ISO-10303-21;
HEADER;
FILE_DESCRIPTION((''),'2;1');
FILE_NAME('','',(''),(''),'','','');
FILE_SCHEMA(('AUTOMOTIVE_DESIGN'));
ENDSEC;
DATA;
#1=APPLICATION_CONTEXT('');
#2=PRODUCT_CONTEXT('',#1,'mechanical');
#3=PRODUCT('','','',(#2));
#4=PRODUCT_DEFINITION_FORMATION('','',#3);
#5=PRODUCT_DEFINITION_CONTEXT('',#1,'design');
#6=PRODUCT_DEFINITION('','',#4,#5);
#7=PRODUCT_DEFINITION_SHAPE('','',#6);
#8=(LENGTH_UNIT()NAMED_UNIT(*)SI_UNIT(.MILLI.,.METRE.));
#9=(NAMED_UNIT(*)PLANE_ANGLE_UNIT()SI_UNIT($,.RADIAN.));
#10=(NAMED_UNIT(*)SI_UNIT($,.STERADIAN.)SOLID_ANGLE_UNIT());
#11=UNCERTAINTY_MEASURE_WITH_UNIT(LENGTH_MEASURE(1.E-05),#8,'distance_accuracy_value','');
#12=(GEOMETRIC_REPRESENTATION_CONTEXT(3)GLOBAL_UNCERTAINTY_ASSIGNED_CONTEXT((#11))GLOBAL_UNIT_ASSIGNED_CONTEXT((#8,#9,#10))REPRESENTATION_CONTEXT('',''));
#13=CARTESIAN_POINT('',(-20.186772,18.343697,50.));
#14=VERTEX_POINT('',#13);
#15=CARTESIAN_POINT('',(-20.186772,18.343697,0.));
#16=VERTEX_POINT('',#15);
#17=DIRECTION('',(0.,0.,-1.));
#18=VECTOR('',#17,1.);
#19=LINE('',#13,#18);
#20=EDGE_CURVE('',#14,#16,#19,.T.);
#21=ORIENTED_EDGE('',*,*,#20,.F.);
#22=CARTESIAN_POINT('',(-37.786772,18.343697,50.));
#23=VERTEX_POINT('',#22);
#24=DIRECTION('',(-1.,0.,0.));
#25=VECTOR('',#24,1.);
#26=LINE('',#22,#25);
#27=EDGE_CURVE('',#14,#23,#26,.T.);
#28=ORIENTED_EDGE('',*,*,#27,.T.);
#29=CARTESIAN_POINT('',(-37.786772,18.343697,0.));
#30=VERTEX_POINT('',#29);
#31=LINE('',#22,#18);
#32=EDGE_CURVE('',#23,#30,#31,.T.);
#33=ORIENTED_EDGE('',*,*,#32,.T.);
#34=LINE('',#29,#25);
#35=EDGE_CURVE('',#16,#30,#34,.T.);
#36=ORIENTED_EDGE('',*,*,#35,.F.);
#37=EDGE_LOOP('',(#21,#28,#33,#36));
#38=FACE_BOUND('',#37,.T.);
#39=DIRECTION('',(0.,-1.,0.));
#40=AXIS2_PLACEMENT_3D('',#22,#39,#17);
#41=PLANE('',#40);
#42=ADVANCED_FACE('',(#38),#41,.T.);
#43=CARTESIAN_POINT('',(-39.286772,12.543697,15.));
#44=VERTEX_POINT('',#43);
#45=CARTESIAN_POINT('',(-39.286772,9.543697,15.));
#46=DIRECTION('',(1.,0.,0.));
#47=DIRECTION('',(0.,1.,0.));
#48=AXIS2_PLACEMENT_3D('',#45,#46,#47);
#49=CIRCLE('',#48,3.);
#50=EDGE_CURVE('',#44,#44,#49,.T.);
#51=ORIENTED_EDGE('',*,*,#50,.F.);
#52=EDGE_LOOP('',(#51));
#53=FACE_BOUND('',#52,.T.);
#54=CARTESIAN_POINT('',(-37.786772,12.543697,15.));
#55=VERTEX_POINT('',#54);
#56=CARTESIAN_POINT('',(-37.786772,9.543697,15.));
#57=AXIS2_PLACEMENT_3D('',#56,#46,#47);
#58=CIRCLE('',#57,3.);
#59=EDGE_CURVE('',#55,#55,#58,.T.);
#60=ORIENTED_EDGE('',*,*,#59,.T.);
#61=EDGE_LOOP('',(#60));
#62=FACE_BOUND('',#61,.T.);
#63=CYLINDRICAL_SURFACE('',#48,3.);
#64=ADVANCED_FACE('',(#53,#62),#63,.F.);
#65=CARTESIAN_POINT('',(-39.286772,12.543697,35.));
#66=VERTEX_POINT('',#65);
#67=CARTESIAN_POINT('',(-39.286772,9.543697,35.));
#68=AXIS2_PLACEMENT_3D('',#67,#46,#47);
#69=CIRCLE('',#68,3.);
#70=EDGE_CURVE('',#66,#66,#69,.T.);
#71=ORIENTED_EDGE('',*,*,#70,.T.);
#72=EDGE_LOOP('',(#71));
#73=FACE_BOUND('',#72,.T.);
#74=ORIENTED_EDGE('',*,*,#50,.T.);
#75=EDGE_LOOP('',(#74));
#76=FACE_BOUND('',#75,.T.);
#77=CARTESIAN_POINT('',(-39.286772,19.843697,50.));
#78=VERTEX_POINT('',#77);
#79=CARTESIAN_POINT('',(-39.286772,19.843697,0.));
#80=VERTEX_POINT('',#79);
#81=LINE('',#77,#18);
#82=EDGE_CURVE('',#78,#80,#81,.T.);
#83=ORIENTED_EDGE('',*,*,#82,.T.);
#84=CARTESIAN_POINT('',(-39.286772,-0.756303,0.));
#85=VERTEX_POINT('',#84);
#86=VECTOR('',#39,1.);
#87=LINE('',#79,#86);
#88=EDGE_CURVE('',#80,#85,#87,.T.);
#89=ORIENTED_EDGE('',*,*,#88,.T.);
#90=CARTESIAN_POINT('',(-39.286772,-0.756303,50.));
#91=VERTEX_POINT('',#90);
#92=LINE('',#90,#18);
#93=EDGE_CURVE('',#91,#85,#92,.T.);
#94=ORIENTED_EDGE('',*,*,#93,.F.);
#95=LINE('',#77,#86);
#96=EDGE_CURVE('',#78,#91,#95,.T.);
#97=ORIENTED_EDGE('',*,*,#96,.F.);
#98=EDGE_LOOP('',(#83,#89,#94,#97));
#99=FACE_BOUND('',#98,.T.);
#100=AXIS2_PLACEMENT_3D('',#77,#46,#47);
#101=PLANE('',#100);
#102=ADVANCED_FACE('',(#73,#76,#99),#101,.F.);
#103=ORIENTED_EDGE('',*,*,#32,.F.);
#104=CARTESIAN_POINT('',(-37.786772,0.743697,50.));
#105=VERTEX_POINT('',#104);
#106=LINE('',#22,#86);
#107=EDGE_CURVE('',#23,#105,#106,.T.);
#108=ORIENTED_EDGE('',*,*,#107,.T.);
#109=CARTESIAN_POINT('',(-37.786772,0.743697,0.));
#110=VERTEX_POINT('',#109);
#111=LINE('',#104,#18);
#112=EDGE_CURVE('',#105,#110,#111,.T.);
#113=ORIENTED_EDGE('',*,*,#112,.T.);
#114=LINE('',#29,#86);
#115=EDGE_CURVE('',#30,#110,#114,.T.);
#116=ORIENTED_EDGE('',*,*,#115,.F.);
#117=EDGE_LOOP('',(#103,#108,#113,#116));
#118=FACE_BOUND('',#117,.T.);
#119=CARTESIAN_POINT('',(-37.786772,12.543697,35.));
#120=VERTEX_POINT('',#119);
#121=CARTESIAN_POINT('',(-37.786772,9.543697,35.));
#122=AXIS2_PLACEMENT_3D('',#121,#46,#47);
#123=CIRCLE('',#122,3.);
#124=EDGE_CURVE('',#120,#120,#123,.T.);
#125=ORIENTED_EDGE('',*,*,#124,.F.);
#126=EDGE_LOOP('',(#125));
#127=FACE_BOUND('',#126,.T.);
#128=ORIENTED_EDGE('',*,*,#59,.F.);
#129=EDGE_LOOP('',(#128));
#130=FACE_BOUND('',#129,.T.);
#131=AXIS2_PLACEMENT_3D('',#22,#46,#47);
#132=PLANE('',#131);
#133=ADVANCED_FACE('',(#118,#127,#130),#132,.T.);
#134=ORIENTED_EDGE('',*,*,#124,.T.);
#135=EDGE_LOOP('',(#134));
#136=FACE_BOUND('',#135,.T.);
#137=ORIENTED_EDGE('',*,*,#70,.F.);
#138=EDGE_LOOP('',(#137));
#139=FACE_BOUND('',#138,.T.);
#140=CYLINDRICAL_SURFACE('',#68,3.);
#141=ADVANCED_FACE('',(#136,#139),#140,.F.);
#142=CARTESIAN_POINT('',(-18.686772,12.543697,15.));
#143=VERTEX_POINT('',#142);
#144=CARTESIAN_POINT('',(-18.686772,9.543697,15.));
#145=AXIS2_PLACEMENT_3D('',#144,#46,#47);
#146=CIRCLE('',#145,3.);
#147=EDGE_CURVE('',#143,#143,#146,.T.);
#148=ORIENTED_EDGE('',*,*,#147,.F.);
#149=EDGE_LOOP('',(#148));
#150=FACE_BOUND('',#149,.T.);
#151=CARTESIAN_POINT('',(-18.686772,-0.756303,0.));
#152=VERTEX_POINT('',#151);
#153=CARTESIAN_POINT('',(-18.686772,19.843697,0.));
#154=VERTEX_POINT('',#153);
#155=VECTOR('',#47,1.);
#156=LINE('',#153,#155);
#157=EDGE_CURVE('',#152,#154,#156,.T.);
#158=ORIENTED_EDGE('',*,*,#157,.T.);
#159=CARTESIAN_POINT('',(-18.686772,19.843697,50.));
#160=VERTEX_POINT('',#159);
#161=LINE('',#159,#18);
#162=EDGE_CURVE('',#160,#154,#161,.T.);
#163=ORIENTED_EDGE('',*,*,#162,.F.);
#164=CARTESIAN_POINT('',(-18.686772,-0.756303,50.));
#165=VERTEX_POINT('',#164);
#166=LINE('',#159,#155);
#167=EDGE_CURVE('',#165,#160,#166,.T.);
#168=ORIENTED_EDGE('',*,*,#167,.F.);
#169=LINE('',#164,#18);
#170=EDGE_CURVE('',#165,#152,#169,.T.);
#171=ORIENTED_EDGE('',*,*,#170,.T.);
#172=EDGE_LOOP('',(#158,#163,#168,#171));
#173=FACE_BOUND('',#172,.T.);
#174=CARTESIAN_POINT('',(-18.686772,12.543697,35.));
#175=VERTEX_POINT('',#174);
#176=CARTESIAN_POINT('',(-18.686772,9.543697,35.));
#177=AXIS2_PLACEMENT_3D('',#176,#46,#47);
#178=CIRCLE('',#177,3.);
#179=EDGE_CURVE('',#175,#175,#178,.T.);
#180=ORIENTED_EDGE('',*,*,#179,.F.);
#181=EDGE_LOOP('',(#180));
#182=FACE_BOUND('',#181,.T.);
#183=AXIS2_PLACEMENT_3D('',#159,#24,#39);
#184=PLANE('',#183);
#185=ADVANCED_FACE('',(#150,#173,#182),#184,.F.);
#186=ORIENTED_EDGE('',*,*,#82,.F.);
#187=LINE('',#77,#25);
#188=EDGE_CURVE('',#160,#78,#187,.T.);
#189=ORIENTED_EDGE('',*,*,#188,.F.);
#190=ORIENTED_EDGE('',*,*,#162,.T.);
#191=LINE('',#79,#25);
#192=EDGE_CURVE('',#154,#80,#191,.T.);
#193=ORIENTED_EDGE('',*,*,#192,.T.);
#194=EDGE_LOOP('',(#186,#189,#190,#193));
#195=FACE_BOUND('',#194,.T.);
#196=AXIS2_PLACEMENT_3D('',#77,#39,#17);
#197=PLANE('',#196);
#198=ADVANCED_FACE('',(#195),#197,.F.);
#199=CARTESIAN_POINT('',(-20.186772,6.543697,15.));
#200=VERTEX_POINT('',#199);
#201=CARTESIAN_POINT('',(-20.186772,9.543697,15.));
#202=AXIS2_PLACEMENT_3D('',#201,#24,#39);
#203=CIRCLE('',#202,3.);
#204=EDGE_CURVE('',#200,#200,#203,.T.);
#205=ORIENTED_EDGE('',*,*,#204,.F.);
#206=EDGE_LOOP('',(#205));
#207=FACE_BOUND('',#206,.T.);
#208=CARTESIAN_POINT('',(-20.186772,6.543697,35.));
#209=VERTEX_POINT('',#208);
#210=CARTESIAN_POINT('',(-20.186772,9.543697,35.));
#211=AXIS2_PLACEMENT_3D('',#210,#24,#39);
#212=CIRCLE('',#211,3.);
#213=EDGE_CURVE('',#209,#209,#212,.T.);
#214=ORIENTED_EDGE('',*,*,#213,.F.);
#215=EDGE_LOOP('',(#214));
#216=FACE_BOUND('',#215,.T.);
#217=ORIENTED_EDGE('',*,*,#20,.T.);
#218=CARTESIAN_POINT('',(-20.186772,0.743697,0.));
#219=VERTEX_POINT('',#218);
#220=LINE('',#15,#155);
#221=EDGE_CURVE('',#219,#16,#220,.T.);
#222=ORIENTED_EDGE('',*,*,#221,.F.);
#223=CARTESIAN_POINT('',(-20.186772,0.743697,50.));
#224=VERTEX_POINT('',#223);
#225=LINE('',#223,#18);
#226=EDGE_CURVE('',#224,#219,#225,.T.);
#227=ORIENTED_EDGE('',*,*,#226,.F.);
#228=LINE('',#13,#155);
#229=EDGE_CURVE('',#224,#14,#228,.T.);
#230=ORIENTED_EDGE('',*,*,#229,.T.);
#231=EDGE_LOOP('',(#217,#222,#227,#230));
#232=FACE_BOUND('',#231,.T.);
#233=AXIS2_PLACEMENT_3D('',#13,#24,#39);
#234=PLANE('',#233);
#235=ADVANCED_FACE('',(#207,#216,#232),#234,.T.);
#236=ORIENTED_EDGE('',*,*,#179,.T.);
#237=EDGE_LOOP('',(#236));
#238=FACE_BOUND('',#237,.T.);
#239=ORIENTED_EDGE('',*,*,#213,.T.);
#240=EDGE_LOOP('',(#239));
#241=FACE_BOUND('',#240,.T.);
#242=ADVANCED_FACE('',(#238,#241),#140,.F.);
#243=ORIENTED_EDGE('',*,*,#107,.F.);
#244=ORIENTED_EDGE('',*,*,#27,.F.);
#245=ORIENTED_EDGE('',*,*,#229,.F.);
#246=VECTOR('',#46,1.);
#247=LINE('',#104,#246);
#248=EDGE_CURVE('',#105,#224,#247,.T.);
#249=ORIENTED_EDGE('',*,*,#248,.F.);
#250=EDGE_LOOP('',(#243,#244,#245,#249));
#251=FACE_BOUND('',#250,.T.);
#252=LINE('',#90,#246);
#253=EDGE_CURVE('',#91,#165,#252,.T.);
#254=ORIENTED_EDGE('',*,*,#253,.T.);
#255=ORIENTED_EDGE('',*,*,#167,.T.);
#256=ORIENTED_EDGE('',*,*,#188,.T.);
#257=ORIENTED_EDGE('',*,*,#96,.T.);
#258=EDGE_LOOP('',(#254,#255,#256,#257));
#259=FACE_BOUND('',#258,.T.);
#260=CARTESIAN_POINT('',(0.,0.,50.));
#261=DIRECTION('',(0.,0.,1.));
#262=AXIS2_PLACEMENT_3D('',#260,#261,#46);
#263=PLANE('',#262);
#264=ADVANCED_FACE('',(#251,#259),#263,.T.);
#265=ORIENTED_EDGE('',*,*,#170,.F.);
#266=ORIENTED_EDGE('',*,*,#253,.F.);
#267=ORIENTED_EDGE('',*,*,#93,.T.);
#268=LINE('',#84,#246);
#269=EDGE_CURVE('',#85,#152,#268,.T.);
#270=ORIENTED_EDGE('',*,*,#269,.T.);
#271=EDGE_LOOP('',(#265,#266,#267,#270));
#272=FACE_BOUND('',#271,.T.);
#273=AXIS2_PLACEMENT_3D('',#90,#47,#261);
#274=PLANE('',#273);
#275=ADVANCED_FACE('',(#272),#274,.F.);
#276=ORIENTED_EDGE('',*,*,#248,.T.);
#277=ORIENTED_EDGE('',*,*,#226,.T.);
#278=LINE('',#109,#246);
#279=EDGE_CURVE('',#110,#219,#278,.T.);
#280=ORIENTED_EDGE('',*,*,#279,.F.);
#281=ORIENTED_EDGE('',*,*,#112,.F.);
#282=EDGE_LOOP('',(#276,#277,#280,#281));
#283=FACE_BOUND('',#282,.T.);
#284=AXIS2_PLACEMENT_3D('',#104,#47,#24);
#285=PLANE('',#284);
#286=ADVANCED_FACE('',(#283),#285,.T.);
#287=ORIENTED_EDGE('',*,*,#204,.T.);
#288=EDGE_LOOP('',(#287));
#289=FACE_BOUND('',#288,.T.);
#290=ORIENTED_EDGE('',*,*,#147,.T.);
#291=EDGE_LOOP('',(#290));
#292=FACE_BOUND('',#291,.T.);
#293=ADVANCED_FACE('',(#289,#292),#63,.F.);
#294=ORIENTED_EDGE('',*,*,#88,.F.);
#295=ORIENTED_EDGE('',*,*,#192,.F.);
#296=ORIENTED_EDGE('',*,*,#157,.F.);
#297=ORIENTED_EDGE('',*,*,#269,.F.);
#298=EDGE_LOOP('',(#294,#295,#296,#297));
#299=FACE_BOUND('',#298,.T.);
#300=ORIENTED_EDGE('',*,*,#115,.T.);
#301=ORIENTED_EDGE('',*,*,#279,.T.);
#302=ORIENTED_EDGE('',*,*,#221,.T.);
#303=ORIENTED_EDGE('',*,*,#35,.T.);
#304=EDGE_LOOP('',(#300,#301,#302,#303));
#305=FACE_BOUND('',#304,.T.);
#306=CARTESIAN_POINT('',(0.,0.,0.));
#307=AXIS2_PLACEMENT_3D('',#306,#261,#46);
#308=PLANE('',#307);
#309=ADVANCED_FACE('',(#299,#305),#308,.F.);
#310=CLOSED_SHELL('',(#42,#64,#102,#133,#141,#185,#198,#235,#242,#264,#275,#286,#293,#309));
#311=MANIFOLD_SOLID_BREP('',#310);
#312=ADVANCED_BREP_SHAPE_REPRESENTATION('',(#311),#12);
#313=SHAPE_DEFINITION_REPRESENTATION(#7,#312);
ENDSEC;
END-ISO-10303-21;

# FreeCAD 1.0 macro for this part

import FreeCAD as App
import Part
import Sketcher

V = App.Vector
Q = App.Units.Quantity

doc = App.newDocument("Part")
body = doc.addObject("PartDesign::Body", "Body")

sketch1 = body.newObject("Sketcher::SketchObject", "Sketch")
sketch1.AttachmentSupport = (doc.getObject("XY_Plane"), [""])
sketch1.MapMode = "FlatFace"
sketch1.addGeometry([
    Part.LineSegment(V(-39, 20, 0), V(-39, -1, 0)),
    Part.LineSegment(V(-39, -1, 0), V(-19, -1, 0)),
    Part.LineSegment(V(-19, -1, 0), V(-19, 20, 0)),
    Part.LineSegment(V(-19, 20, 0), V(-39, 20, 0)),
    Part.LineSegment(V(-20, 1, 0), V(-38, 1, 0)),
    Part.LineSegment(V(-38, 1, 0), V(-38, 18, 0)),
    Part.LineSegment(V(-38, 18, 0), V(-20, 18, 0)),
    Part.LineSegment(V(-20, 18, 0), V(-20, 1, 0)),
], False)
sketch1.addConstraint([
    Sketcher.Constraint("Coincident", 0, 2, 1, 1),
    Sketcher.Constraint("Coincident", 1, 2, 2, 1),
    Sketcher.Constraint("Coincident", 2, 2, 3, 1),
    Sketcher.Constraint("Coincident", 3, 2, 0, 1),
    Sketcher.Constraint("Coincident", 4, 2, 5, 1),
    Sketcher.Constraint("Coincident", 5, 2, 6, 1),
    Sketcher.Constraint("Coincident", 6, 2, 7, 1),
    Sketcher.Constraint("Coincident", 7, 2, 4, 1),
    Sketcher.Constraint("Vertical", 0),
    Sketcher.Constraint("Horizontal", 1),
    Sketcher.Constraint("Vertical", 2),
    Sketcher.Constraint("Horizontal", 3),
    Sketcher.Constraint("Horizontal", 4),
    Sketcher.Constraint("Vertical", 5),
    Sketcher.Constraint("Horizontal", 6),
    Sketcher.Constraint("Vertical", 7),
    Sketcher.Constraint("Equal", 3, 0),
    Sketcher.Constraint("Equal", 6, 5),
    Sketcher.Constraint("DistanceX", 1, 1, 1, 2, Q("20.6 mm")),
    Sketcher.Constraint("DistanceX", 4, 2, 4, 1, Q("17.6 mm")),
    Sketcher.Constraint("DistanceX", 0, 2, 4, 2, Q("1.5 mm")),
    Sketcher.Constraint("DistanceY", 0, 2, 4, 2, Q("1.5 mm")),
    Sketcher.Constraint("DistanceX", 0, 2, -1, 1, Q("39.286772 mm")),
    Sketcher.Constraint("DistanceY", 0, 2, -1, 1, Q("0.756303 mm")),
])
pad1 = body.newObject("PartDesign::Pad", "Pad")
pad1.Profile = sketch1
pad1.Length = 50

sketch2 = body.newObject("Sketcher::SketchObject", "Sketch001")
sketch2.AttachmentSupport = (doc.getObject("YZ_Plane"), [""])
sketch2.MapMode = "FlatFace"
sketch2.AttachmentOffset = App.Placement(V(0, 0, -18.686772), App.Rotation())
sketch2.addGeometry([
    Part.Circle(V(9.5, 35, 0), V(0, 0, 1), 3),
    Part.Circle(V(9.5, 15, 0), V(0, 0, 1), 3),
], False)
sketch2.addConstraint([
    Sketcher.Constraint("Equal", 0, 1),
    Sketcher.Constraint("Vertical", 0, 3, 1, 3),
    Sketcher.Constraint("Diameter", 0, Q("6 mm")),
    Sketcher.Constraint("DistanceY", -1, 1, 0, 3, Q("35 mm")),
    Sketcher.Constraint("DistanceY", -1, 1, 1, 3, Q("15 mm")),
    Sketcher.Constraint("DistanceX", -1, 1, 0, 3, Q("9.543697 mm")),
])
pocket1 = body.newObject("PartDesign::Pocket", "Pocket")
pocket1.Profile = sketch2
pocket1.Type = "ThroughAll"

doc.recompute()
